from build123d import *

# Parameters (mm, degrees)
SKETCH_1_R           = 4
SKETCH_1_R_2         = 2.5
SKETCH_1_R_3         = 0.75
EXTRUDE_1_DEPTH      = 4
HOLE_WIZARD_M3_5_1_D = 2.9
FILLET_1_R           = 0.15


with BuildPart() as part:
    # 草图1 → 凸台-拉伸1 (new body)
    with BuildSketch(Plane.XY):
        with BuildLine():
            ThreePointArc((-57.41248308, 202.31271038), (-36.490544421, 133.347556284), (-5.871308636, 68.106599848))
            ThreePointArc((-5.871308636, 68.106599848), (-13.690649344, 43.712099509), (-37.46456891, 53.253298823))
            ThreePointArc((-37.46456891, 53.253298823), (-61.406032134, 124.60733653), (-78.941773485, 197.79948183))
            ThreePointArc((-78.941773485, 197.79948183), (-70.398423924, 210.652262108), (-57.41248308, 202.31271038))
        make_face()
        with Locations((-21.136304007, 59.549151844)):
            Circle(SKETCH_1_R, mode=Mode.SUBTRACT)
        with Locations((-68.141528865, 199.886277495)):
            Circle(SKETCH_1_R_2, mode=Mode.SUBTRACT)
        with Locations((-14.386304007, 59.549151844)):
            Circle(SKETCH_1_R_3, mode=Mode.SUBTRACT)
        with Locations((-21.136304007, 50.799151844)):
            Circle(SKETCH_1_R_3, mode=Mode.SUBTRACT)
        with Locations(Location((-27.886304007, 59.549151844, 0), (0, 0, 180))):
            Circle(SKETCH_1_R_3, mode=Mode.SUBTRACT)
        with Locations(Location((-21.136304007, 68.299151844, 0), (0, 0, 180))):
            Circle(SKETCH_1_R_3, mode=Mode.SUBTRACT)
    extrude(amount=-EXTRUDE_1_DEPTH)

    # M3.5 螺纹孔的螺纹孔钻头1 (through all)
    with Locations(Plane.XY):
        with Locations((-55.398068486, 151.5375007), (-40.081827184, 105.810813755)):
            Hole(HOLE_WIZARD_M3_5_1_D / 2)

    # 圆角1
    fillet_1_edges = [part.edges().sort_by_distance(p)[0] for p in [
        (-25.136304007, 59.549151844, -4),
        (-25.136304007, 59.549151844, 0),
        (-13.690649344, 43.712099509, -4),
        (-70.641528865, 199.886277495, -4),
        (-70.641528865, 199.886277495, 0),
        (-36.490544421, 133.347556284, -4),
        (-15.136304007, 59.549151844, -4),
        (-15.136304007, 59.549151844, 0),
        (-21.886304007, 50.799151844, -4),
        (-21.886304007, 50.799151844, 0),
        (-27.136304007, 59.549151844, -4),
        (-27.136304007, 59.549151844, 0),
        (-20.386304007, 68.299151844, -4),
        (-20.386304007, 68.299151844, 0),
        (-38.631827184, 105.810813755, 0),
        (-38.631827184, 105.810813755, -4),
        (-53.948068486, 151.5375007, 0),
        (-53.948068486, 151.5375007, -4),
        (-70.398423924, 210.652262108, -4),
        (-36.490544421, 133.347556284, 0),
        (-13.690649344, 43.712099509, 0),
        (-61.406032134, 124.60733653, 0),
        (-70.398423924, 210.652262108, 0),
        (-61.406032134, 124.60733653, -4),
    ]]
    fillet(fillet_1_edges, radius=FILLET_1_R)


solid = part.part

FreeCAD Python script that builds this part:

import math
import FreeCAD as App
import Part
import Sketcher
from FreeCAD import Vector
Q = App.Units.Quantity


def edges_at(feature, points):
    """Names of the edges that pass closest to the given points."""
    edges = feature.Shape.Edges
    near = lambda p: min(range(len(edges)), key=lambda i: edges[i].distToShape(Part.Vertex(*p))[0])
    return sorted({f"Edge{near(p) + 1}" for p in points})

doc = App.newDocument("Part")
params = doc.addObject("Spreadsheet::Sheet", "Params")
for row, (alias, value) in enumerate([
    ("sketch1_diameter", "8 mm"),
    ("sketch1_diameter2", "5 mm"),
    ("sketch1_radius", "500 mm"),
    ("sketch1_radius2", "11 mm"),
    ("sketch1_radius3", "850 mm"),
    ("pad1_length", "4 mm"),
    ("sketch2_diameter", "2.9 mm"),
    ("hole_diameter", "2.9 mm"),
    ("fillet_radius", "0.15 mm"),
], start=1):
    params.set(f"A{row}", alias)
    params.set(f"B{row}", "=" + value)
    params.setAlias(f"B{row}", alias)

body = doc.addObject("PartDesign::Body", "Body")

sketch1 = body.newObject("Sketcher::SketchObject", "Sketch")
sketch1.AttachmentSupport = (doc.getObject("XY_Plane"), [""])
sketch1.MapMode = "FlatFace"
sketch1.addGeometry(Part.ArcOfCircle(Part.Circle(Vector(430.271416, 312.605114, 0), Vector(0, 0, 1), 500), math.radians(-167.256616), math.radians(-150.72532)), False)
sketch1.addGeometry(Part.ArcOfCircle(Part.Circle(Vector(-68.141529, 199.886277, 0), Vector(0, 0, 1), 11), math.radians(12.743384), math.radians(190.935785)), False)
sketch1.addGeometry(Part.ArcOfCircle(Part.Circle(Vector(755.622583, 359.051874, 0), Vector(0, 0, 1), 850), math.radians(-169.064215), math.radians(-158.914356)), False)
sketch1.addGeometry(Part.ArcOfCircle(Part.Circle(Vector(-21.136304, 59.549152, 0), Vector(0, 0, 1), 17.5), math.radians(-158.914356), math.radians(29.27468)), False)
sketch1.addGeometry(Part.Circle(Vector(-14.386304, 59.549152, 0), Vector(0, 0, 1), 0.75), False)
sketch1.addGeometry(Part.Circle(Vector(-21.136304, 50.799152, 0), Vector(0, 0, 1), 0.75), False)
sketch1.addGeometry(Part.Circle(Vector(-21.136304, 59.549152, 0), Vector(0, 0, 1), 4), False)
sketch1.addGeometry(Part.Circle(Vector(-27.886304, 59.549152, 0), Vector(0, 0, 1), 0.75), False)
sketch1.addGeometry(Part.Circle(Vector(-21.136304, 68.299152, 0), Vector(0, 0, 1), 0.75), False)
sketch1.addGeometry(Part.Circle(Vector(-68.141529, 199.886277, 0), Vector(0, 0, 1), 2.5), False)
sketch1.addConstraint(Sketcher.Constraint("Tangent", 0, 1, 1, 1))
sketch1.addConstraint(Sketcher.Constraint("Tangent", 1, 2, 2, 1))
sketch1.addConstraint(Sketcher.Constraint("Tangent", 2, 2, 3, 1))
sketch1.addConstraint(Sketcher.Constraint("Tangent", 3, 2, 0, 2))
sketch1.addConstraint(Sketcher.Constraint("Coincident", 6, 3, 3, 3))
sketch1.addConstraint(Sketcher.Constraint("Coincident", 9, 3, 1, 3))
sketch1.addConstraint(Sketcher.Constraint("Equal", 4, 5))
sketch1.addConstraint(Sketcher.Constraint("Equal", 5, 7))
sketch1.addConstraint(Sketcher.Constraint("Equal", 7, 8))
sketch1.addConstraint(Sketcher.Constraint("Horizontal", 3, 3, 4, 3))
sketch1.addConstraint(Sketcher.Constraint("Horizontal", 6, 3, 7, 3))
sketch1.addConstraint(Sketcher.Constraint("Vertical", 3, 3, 5, 3))
sketch1.addConstraint(Sketcher.Constraint("Vertical", 6, 3, 8, 3))
sketch1.addConstraint(Sketcher.Constraint("Diameter", 6, Q("8 mm")))
sketch1.addConstraint(Sketcher.Constraint("Diameter", 9, Q("5 mm")))
sketch1.addConstraint(Sketcher.Constraint("Radius", 0, Q("500 mm")))
sketch1.addConstraint(Sketcher.Constraint("Radius", 1, Q("11 mm")))
sketch1.addConstraint(Sketcher.Constraint("Radius", 2, Q("850 mm")))
sketch1.addConstraint(Sketcher.Constraint("Diameter", 4, Q("1.5 mm")))
sketch1.addConstraint(Sketcher.Constraint("Radius", 3, Q("17.5 mm")))
sketch1.addConstraint(Sketcher.Constraint("DistanceX", 7, 3, 4, 3, Q("13.5 mm")))
sketch1.addConstraint(Sketcher.Constraint("DistanceY", 5, 3, 8, 3, Q("17.5 mm")))
sketch1.addConstraint(Sketcher.Constraint("DistanceX", 3, 3, 4, 3, Q("6.75 mm")))
sketch1.addConstraint(Sketcher.Constraint("DistanceY", 5, 3, 3, 3, Q("8.75 mm")))
sketch1.addConstraint(Sketcher.Constraint("DistanceY", -1, 1, 3, 2, Q("68.1066 mm")))
sketch1.addConstraint(Sketcher.Constraint("DistanceX", 1, 3, -1, 1, Q("68.141529 mm")))
sketch1.addConstraint(Sketcher.Constraint("DistanceY", -1, 1, 3, 3, Q("59.549152 mm")))
sketch1.addConstraint(Sketcher.Constraint("DistanceY", -1, 1, 1, 2, Q("197.799482 mm")))
sketch1.setExpression("Constraints[13]", "Params.sketch1_diameter")
sketch1.setExpression("Constraints[14]", "Params.sketch1_diameter2")
sketch1.setExpression("Constraints[15]", "Params.sketch1_radius")
sketch1.setExpression("Constraints[16]", "Params.sketch1_radius2")
sketch1.setExpression("Constraints[17]", "Params.sketch1_radius3")
pad1 = body.newObject("PartDesign::Pad", "Pad")
pad1.Profile = sketch1
pad1.setExpression("Length", "Params.pad1_length")
pad1.Reversed = True

sketch2 = body.newObject("Sketcher::SketchObject", "Sketch001")
sketch2.AttachmentSupport = (doc.getObject("XY_Plane"), [""])
sketch2.MapMode = "FlatFace"
sketch2.addGeometry(Part.Circle(Vector(-55.398068, 151.537501, 0), Vector(0, 0, 1), 1.45), False)
sketch2.addGeometry(Part.Circle(Vector(-40.081827, 105.810814, 0), Vector(0, 0, 1), 1.45), False)
sketch2.addConstraint(Sketcher.Constraint("Equal", 0, 1))
sketch2.addConstraint(Sketcher.Constraint("Diameter", 0, Q("2.9 mm")))
sketch2.addConstraint(Sketcher.Constraint("DistanceY", -1, 1, 0, 3, Q("151.537501 mm")))
sketch2.addConstraint(Sketcher.Constraint("DistanceX", 0, 3, -1, 1, Q("55.398068 mm")))
sketch2.addConstraint(Sketcher.Constraint("DistanceX", 0, 3, 1, 3, Q("15.316241 mm")))
sketch2.addConstraint(Sketcher.Constraint("DistanceY", -1, 1, 1, 3, Q("105.810814 mm")))
sketch2.setExpression("Constraints[1]", "Params.sketch2_diameter")
doc.recompute()
hole = body.newObject("PartDesign::Hole", "Hole")
hole.Profile = sketch2
hole.ThreadType = "None"
hole.setExpression("Diameter", "Params.hole_diameter")
hole.DepthType = "ThroughAll"
doc.recompute()

fillet = body.newObject("PartDesign::Fillet", "Fillet")
fillet.Base = (hole, edges_at(hole, [
    (-25.136, 59.549, -4),
    (-25.136, 59.549, 0),
    (-13.691, 43.712, -4),
    (-70.642, 199.886, -4),
    (-70.642, 199.886, 0),
    (-36.491, 133.348, -4),
    (-15.136, 59.549, -4),
    (-15.136, 59.549, 0),
    (-21.886, 50.799, -4),
    (-21.886, 50.799, 0),
    (-27.136, 59.549, -4),
    (-27.136, 59.549, 0),
    (-20.386, 68.299, -4),
    (-20.386, 68.299, 0),
    (-38.632, 105.811, 0),
    (-38.632, 105.811, -4),
    (-53.948, 151.538, 0),
    (-53.948, 151.538, -4),
    (-70.398, 210.652, -4),
    (-36.491, 133.348, 0),
    (-13.691, 43.712, 0),
    (-61.406, 124.607, 0),
    (-70.398, 210.652, 0),
    (-61.406, 124.607, -4),
]))
fillet.setExpression("Radius", "Params.fillet_radius")

doc.recompute()
